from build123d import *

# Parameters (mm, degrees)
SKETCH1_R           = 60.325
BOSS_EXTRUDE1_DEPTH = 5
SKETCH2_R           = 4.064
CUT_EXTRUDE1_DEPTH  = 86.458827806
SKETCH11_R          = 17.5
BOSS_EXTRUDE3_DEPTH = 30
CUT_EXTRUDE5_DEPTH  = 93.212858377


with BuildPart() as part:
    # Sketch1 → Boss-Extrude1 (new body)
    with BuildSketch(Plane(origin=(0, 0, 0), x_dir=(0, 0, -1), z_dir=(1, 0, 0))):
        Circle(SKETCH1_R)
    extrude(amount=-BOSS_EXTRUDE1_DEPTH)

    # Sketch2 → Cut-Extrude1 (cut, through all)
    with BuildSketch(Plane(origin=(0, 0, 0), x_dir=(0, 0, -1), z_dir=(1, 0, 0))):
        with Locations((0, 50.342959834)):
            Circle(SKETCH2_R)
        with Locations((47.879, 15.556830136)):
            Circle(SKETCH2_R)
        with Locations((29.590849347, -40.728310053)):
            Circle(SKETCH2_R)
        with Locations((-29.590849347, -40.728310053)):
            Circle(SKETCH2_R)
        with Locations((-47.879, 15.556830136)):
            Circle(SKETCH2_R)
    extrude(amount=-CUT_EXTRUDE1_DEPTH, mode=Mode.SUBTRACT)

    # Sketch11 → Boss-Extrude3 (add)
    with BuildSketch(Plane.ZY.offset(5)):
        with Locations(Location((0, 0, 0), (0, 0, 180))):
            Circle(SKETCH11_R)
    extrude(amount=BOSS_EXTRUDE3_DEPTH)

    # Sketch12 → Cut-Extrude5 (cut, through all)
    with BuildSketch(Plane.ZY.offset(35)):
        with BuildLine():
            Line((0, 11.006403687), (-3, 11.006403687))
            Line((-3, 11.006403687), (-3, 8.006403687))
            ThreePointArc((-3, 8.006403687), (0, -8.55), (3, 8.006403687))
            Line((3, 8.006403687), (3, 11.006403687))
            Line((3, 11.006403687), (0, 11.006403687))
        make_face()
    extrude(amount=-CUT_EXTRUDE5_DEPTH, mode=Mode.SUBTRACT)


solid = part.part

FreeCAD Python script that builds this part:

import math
import FreeCAD as App
import Part
import Sketcher
from FreeCAD import Vector
Q = App.Units.Quantity

doc = App.newDocument("Part")
body = doc.addObject("PartDesign::Body", "Body")

# Sketch on YZ plane
sketch1 = body.newObject("Sketcher::SketchObject", "Sketch")
sketch1.AttachmentSupport = (doc.getObject("YZ_Plane"), [""])
sketch1.MapMode = "FlatFace"
sketch1.addGeometry(Part.Circle(Vector(0, 0, 0), Vector(0, 0, 1), 60), False)
sketch1.addConstraint([
    Sketcher.Constraint("Coincident", 0, 3, -1, 1),
    Sketcher.Constraint("Diameter", 0, Q("120.65 mm")),
])
pad1 = body.newObject("PartDesign::Pad", "Pad")
pad1.Profile = sketch1
pad1.Length = 5
pad1.Reversed = True

# Sketch on YZ plane
sketch2 = body.newObject("Sketcher::SketchObject", "Sketch001")
sketch2.AttachmentSupport = (doc.getObject("YZ_Plane"), [""])
sketch2.MapMode = "FlatFace"
sketch2.addGeometry([
    Part.Circle(Vector(50.3, 0, 0), Vector(0, 0, 1), 4.1),  # 0
    Part.Circle(Vector(15.6, -47.9, 0), Vector(0, 0, 1), 4.1),  # 1
    Part.Circle(Vector(-40.7, -29.6, 0), Vector(0, 0, 1), 4.1),  # 2
    Part.Circle(Vector(-40.7, 29.6, 0), Vector(0, 0, 1), 4.1),  # 3
    Part.Circle(Vector(15.6, 47.9, 0), Vector(0, 0, 1), 4.1),  # 4
], False)
sketch2.addConstraint([
    Sketcher.Constraint("Equal", 0, 1),
    Sketcher.Constraint("Equal", 1, 2),
    Sketcher.Constraint("Equal", 2, 3),
    Sketcher.Constraint("Equal", 3, 4),
    Sketcher.Constraint("Symmetric", 2, 3, 3, 3, -1),
    Sketcher.Constraint("Symmetric", 1, 3, 4, 3, -1),
    Sketcher.Constraint("PointOnObject", 0, 3, -1),
    Sketcher.Constraint("Diameter", 0, Q("8.128 mm")),
    Sketcher.Constraint("DistanceY", 1, 3, -1, 1, Q("47.879 mm")),
    Sketcher.Constraint("DistanceY", 2, 3, 3, 3, Q("59.181699 mm")),
    Sketcher.Constraint("DistanceX", -1, 1, 0, 3, Q("50.34296 mm")),
    Sketcher.Constraint("DistanceX", -1, 1, 1, 3, Q("15.55683 mm")),
    Sketcher.Constraint("DistanceX", 2, 3, -1, 1, Q("40.72831 mm")),
])
pocket1 = body.newObject("PartDesign::Pocket", "Pocket")
pocket1.Profile = sketch2
pocket1.Type = "ThroughAll"

# Sketch on YZ plane
sketch3 = body.newObject("Sketcher::SketchObject", "Sketch002")
sketch3.AttachmentSupport = (doc.getObject("YZ_Plane"), [""])
sketch3.MapMode = "FlatFace"
sketch3.AttachmentOffset = App.Placement(Vector(0, 0, -5), App.Rotation())
sketch3.addGeometry(Part.Circle(Vector(0, 0, 0), Vector(0, 0, 1), 18), False)
sketch3.addConstraint([
    Sketcher.Constraint("Coincident", 0, 3, -1, 1),
    Sketcher.Constraint("Diameter", 0, Q("35 mm")),
])
pad2 = body.newObject("PartDesign::Pad", "Pad001")
pad2.Profile = sketch3
pad2.Length = 30
pad2.Reversed = True

# Sketch on YZ plane
sketch4 = body.newObject("Sketcher::SketchObject", "Sketch003")
sketch4.AttachmentSupport = (doc.getObject("YZ_Plane"), [""])
sketch4.MapMode = "FlatFace"
sketch4.AttachmentOffset = App.Placement(Vector(0, 0, -35), App.Rotation())
sketch4.addGeometry([
    Part.LineSegment(Vector(11, -3, 0), Vector(8, -3, 0)),
    Part.ArcOfCircle(Part.Circle(Vector(0, 0, 0), Vector(0, 0, 1), 8.6), math.radians(21), math.radians(339)),
    Part.LineSegment(Vector(8, 3, 0), Vector(11, 3, 0)),
    Part.LineSegment(Vector(11, 3, 0), Vector(11, -3, 0)),
], False)
sketch4.addConstraint([
    Sketcher.Constraint("Coincident", 0, 2, 1, 2),
    Sketcher.Constraint("Coincident", 1, 1, 2, 1),
    Sketcher.Constraint("Coincident", 2, 2, 3, 1),
    Sketcher.Constraint("Coincident", 3, 2, 0, 1),
    Sketcher.Constraint("Horizontal", 0),
    Sketcher.Constraint("Horizontal", 2),
    Sketcher.Constraint("Vertical", 3),
    Sketcher.Constraint("Coincident", 1, 3, -1, 1),
    Sketcher.Constraint("Vertical", 0, 2, 1, 1),
    Sketcher.Constraint("DistanceX", 0, 2, 0, 1, Q("3 mm")),
    Sketcher.Constraint("DistanceY", 3, 2, 3, 1, Q("6 mm")),
    Sketcher.Constraint("Radius", 1, Q("8.55 mm")),
])
pocket2 = body.newObject("PartDesign::Pocket", "Pocket001")
pocket2.Profile = sketch4
pocket2.Type = "ThroughAll"
pocket2.Reversed = True

doc.recompute()
